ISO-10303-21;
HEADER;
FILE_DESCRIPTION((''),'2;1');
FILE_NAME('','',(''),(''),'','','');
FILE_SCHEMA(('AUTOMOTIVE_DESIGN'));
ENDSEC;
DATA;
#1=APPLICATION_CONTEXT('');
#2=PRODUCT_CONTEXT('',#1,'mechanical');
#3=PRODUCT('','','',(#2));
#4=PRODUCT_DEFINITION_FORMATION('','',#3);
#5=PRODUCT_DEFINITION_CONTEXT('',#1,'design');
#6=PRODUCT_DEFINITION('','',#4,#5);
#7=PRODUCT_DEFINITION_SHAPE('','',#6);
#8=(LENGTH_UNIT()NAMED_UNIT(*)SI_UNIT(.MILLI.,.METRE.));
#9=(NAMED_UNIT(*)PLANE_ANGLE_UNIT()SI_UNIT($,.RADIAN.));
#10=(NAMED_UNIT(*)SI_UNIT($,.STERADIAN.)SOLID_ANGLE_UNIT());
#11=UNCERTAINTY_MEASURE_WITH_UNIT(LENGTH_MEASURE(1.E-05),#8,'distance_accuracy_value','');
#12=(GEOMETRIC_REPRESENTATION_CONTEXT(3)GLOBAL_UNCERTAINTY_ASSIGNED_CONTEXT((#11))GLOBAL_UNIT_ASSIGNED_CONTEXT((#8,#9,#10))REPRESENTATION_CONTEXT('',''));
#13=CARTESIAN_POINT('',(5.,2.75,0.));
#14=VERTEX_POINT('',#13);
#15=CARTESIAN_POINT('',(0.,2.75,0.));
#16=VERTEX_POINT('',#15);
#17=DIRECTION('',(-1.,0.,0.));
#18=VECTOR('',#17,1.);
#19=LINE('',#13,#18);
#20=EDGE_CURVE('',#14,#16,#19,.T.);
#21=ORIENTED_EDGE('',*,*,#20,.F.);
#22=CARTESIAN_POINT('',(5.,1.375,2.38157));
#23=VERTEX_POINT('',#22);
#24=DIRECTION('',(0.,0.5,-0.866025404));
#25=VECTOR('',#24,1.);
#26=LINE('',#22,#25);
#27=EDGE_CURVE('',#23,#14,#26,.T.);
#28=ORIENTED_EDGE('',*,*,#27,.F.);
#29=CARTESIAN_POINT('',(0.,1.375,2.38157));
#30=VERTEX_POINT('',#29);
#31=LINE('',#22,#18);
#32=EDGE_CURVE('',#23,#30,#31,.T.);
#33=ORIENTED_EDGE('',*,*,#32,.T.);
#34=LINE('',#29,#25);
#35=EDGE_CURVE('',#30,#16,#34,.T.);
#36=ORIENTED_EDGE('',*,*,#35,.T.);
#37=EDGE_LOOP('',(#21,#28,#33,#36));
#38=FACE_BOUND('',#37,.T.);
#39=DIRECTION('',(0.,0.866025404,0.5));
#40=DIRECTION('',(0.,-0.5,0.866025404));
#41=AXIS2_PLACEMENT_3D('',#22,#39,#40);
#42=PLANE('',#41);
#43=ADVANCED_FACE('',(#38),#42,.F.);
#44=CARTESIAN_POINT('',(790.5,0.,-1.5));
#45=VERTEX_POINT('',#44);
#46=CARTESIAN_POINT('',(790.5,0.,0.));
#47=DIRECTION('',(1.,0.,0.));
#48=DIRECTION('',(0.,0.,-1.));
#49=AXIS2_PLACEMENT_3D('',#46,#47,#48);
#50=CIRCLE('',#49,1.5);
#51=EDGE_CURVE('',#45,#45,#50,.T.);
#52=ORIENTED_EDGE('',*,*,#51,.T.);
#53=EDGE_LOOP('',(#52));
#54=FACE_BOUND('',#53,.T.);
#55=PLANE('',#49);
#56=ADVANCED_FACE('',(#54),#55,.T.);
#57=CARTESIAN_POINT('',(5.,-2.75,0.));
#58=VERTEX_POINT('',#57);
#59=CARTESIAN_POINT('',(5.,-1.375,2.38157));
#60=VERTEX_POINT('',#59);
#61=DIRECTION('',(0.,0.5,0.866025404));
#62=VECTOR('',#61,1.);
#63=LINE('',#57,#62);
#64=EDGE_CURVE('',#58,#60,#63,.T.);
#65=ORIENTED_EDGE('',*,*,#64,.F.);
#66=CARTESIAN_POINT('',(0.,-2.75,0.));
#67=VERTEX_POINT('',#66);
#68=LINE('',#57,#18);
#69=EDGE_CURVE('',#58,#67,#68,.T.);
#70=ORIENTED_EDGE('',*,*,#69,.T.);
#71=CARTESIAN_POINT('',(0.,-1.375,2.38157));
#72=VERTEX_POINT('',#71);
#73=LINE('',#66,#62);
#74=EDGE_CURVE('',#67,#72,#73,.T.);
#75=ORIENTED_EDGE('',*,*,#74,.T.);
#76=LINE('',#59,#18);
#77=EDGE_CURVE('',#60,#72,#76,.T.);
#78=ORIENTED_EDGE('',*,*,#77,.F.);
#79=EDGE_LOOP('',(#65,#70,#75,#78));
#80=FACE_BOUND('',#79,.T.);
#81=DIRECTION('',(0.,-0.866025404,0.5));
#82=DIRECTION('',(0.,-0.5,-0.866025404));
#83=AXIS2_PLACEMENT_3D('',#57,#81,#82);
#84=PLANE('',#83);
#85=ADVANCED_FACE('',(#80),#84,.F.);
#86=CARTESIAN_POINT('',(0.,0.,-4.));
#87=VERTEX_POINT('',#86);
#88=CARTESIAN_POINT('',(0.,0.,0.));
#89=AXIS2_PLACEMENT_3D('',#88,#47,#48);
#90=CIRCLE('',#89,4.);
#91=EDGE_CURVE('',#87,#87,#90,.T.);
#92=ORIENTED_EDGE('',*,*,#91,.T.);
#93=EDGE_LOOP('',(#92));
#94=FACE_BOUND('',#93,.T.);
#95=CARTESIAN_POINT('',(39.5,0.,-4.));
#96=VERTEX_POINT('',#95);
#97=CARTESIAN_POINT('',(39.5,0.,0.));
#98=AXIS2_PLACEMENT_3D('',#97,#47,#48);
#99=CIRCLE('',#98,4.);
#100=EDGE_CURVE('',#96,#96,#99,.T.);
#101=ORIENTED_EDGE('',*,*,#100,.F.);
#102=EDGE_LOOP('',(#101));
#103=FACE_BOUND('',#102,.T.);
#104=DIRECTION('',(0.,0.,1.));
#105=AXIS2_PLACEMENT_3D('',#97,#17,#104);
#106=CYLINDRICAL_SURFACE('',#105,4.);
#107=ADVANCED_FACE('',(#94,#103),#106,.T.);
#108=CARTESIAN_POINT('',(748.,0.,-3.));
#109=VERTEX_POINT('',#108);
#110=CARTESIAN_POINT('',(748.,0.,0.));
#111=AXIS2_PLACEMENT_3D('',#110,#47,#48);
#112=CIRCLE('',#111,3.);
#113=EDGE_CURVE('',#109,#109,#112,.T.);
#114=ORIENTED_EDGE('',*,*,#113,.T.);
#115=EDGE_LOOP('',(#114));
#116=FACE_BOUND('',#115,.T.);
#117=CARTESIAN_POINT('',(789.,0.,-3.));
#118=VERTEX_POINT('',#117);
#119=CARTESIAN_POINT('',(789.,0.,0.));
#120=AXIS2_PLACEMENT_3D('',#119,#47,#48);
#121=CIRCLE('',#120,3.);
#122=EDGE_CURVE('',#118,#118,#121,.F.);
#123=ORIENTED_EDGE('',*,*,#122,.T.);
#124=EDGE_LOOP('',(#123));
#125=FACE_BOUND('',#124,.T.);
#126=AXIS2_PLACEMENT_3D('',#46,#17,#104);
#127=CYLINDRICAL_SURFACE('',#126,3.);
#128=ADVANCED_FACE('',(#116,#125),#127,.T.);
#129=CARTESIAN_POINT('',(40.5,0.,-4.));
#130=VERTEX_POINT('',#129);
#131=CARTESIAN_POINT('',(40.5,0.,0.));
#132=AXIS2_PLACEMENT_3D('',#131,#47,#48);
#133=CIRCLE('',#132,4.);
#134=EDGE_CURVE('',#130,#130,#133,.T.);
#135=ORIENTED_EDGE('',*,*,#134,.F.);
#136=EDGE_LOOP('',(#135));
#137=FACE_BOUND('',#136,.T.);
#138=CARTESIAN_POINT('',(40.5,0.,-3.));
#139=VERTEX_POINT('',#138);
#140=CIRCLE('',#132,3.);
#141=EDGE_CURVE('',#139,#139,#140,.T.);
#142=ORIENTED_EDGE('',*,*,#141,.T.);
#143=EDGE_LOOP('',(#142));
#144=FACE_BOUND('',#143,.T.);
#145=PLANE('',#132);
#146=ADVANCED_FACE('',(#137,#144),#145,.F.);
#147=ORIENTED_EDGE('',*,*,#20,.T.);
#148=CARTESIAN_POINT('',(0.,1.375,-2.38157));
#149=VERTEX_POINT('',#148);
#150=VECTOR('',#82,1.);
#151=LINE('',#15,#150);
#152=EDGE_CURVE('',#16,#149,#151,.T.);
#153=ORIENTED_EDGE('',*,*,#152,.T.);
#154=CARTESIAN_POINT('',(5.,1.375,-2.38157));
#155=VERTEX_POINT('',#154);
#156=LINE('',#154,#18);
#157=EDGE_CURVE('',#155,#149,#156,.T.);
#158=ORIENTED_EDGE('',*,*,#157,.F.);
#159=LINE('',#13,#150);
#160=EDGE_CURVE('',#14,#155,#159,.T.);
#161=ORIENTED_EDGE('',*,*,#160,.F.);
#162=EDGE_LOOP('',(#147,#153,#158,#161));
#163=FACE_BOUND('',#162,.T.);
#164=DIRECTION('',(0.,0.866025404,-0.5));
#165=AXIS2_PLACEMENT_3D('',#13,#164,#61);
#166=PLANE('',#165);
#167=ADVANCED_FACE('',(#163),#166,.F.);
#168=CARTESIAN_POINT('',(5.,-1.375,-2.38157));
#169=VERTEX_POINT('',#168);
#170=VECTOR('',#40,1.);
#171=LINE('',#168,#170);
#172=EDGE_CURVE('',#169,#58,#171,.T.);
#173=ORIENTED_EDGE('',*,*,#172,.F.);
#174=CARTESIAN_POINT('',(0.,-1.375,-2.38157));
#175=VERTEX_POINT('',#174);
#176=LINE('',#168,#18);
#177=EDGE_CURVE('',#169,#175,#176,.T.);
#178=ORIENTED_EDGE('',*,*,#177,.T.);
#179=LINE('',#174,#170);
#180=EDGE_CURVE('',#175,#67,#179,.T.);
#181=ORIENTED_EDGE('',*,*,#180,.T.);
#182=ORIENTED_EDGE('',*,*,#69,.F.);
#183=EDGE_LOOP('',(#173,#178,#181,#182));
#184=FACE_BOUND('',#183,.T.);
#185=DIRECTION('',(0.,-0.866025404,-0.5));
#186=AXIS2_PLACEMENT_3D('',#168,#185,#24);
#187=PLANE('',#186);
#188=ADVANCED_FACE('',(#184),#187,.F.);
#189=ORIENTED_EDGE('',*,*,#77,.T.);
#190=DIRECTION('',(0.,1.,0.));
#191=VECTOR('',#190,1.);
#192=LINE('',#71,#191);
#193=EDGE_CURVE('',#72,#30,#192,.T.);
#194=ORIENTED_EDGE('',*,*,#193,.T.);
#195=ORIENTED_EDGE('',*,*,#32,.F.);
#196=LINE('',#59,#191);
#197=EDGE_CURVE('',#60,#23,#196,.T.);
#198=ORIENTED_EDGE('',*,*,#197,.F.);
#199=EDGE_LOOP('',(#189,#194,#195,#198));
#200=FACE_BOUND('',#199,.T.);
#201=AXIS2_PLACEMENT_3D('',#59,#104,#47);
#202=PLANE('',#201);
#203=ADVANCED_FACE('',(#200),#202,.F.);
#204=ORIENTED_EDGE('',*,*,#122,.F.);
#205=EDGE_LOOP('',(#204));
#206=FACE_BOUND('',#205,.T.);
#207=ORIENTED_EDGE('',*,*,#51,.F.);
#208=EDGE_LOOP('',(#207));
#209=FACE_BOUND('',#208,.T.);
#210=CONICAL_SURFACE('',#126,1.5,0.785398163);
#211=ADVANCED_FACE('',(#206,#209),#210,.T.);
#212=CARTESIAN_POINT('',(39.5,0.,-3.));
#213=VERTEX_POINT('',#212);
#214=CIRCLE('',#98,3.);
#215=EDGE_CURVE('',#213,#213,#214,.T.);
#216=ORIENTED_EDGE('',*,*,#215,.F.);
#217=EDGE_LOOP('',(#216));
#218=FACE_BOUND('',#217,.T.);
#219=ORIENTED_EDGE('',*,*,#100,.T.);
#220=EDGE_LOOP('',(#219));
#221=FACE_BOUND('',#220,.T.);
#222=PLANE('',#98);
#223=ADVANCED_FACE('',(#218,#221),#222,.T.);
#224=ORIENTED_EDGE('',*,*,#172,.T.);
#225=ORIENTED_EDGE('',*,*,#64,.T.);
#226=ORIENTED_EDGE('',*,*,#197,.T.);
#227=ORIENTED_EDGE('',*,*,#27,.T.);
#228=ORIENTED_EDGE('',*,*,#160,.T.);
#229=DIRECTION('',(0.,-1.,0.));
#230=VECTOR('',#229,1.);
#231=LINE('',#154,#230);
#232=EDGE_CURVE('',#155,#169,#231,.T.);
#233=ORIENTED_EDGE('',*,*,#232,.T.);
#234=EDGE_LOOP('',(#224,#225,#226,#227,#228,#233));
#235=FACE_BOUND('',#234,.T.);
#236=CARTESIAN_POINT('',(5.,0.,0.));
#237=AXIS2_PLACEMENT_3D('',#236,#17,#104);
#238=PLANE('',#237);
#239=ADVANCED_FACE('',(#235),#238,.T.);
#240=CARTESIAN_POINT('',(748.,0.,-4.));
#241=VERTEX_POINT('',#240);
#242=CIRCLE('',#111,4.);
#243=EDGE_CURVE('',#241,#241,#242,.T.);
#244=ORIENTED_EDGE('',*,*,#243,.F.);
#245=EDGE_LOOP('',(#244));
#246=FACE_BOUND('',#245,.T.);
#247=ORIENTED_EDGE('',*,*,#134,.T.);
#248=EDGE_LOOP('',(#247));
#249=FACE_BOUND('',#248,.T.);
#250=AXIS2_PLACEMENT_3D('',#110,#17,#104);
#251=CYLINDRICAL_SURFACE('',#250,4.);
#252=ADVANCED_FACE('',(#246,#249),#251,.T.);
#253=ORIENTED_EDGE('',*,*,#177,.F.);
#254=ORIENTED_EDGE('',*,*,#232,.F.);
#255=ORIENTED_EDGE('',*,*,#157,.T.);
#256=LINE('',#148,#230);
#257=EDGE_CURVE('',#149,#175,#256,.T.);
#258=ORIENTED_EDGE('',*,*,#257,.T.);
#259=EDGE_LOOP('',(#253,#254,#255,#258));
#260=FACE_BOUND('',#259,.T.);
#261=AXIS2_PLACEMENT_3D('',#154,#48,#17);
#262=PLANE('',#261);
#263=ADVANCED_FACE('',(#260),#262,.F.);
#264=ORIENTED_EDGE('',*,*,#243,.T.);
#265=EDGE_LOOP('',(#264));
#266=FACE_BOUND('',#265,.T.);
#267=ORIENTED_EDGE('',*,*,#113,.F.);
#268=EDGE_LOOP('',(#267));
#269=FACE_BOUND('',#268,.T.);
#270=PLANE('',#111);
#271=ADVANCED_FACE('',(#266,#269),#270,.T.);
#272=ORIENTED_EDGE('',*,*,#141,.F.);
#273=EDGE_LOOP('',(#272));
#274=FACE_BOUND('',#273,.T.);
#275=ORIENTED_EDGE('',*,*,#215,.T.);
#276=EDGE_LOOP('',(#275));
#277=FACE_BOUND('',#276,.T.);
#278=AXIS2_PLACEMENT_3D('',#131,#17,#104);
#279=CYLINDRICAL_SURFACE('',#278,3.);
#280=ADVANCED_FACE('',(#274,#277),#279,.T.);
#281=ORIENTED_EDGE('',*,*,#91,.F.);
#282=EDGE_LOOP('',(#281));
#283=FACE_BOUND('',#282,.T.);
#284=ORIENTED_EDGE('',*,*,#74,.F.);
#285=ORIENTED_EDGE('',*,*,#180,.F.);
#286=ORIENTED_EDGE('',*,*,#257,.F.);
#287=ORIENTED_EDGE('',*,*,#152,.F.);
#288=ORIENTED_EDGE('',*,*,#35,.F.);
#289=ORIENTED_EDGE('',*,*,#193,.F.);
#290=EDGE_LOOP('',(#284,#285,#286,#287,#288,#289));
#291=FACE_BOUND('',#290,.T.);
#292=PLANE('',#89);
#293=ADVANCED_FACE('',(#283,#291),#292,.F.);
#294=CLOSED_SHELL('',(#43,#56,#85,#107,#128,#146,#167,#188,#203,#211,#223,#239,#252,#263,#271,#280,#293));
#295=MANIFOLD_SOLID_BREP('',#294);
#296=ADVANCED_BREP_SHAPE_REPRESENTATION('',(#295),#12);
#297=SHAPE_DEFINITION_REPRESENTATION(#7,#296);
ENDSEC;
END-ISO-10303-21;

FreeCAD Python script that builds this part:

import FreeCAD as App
import Part
import Sketcher
Q = App.Units.Quantity


def edges_at(feature, points):
    """Names of the edges that pass closest to the given points."""
    edges = feature.Shape.Edges
    near = lambda p: min(range(len(edges)), key=lambda i: edges[i].distToShape(Part.Vertex(*p))[0])
    return sorted({f"Edge{near(p) + 1}" for p in points})


def add_polygon(sketch, points):
    """Adds a closed chain of lines whose ends are joined by coincident constraints."""
    first, n = sketch.GeometryCount, len(points)
    for a, b in zip(points, points[1:] + points[:1]):
        sketch.addGeometry(Part.LineSegment(App.Vector(*a, 0), App.Vector(*b, 0)), False)
    for i in range(n):
        sketch.addConstraint(Sketcher.Constraint("Coincident", first + i, 2, first + (i + 1) % n, 1))

doc = App.newDocument("Part")
body = doc.addObject("PartDesign::Body", "Body")

# Sketch on YZ plane
sketch1 = body.newObject("Sketcher::SketchObject", "Sketch")
sketch1.AttachmentSupport = (doc.getObject("YZ_Plane"), [""])
sketch1.MapMode = "FlatFace"
sketch1.addGeometry(Part.Circle(App.Vector(0, 0, 0), App.Vector(0, 0, 1), 4), False)
sketch1.addConstraint([
    Sketcher.Constraint("Coincident", 0, 3, -1, 1),
    Sketcher.Constraint("Diameter", 0, Q("8 mm")),
])
pad1 = body.newObject("PartDesign::Pad", "Pad")
pad1.Profile = sketch1
pad1.Length = 39.5

# Sketch on YZ plane
sketch2 = body.newObject("Sketcher::SketchObject", "Sketch001")
sketch2.AttachmentSupport = (doc.getObject("YZ_Plane"), [""])
sketch2.MapMode = "FlatFace"
sketch2.AttachmentOffset = App.Placement(App.Vector(0, 0, 39.5), App.Rotation())
sketch2.addGeometry(Part.Circle(App.Vector(0, 0, 0), App.Vector(0, 0, 1), 3), False)
sketch2.addConstraint([
    Sketcher.Constraint("Coincident", 0, 3, -1, 1),
    Sketcher.Constraint("Diameter", 0, Q("6 mm")),
])
pad2 = body.newObject("PartDesign::Pad", "Pad001")
pad2.Profile = sketch2
pad2.Length = 1

# Sketch on YZ plane
sketch3 = body.newObject("Sketcher::SketchObject", "Sketch002")
sketch3.AttachmentSupport = (doc.getObject("YZ_Plane"), [""])
sketch3.MapMode = "FlatFace"
sketch3.AttachmentOffset = App.Placement(App.Vector(0, 0, 40.5), App.Rotation())
sketch3.addGeometry(Part.Circle(App.Vector(0, 0, 0), App.Vector(0, 0, 1), 4), False)
sketch3.addConstraint([
    Sketcher.Constraint("Coincident", 0, 3, -1, 1),
    Sketcher.Constraint("Diameter", 0, Q("8 mm")),
])
pad3 = body.newObject("PartDesign::Pad", "Pad002")
pad3.Profile = sketch3
pad3.Length = 707.5

# Sketch on YZ plane
sketch4 = body.newObject("Sketcher::SketchObject", "Sketch003")
sketch4.AttachmentSupport = (doc.getObject("YZ_Plane"), [""])
sketch4.MapMode = "FlatFace"
sketch4.AttachmentOffset = App.Placement(App.Vector(0, 0, 748), App.Rotation())
sketch4.addGeometry(Part.Circle(App.Vector(0, 0, 0), App.Vector(0, 0, 1), 3), False)
sketch4.addConstraint([
    Sketcher.Constraint("Coincident", 0, 3, -1, 1),
    Sketcher.Constraint("Diameter", 0, Q("6 mm")),
])
pad4 = body.newObject("PartDesign::Pad", "Pad003")
pad4.Profile = sketch4
pad4.Length = 42.5
doc.recompute()

chamfer = body.newObject("PartDesign::Chamfer", "Chamfer")
chamfer.Base = (pad4, edges_at(pad4, [(790.5, 0, 3)]))
chamfer.Size = 1.5

# Sketch on YZ plane
sketch5 = body.newObject("Sketcher::SketchObject", "Sketch004")
sketch5.AttachmentSupport = (doc.getObject("YZ_Plane"), [""])
sketch5.MapMode = "FlatFace"
add_polygon(sketch5, [(1.375, -2.38157), (-1.375, -2.38157), (-2.75, 0), (-1.375, 2.38157), (1.375, 2.38157), (2.75, 0)])  # lines 0-5
sketch5.addConstraint([
    Sketcher.Constraint("Horizontal", 0),
    Sketcher.Constraint("Horizontal", 3),
    Sketcher.Constraint("Symmetric", 0, 2, 3, 2, -1, 1),
    Sketcher.Constraint("Symmetric", 1, 2, 4, 2, -1, 1),
    Sketcher.Constraint("PointOnObject", 1, 2, -1),
    Sketcher.Constraint("Parallel", 2, 5),
    Sketcher.Constraint("Vertical", 0, 2, 2, 2),
    Sketcher.Constraint("Angle", 1, Q("120 deg")),
    Sketcher.Constraint("DistanceX", 0, 2, 0, 1, Q("2.75 mm")),
    Sketcher.Constraint("DistanceX", 1, 2, 4, 2, Q("5.5 mm")),
])
pocket1 = body.newObject("PartDesign::Pocket", "Pocket")
pocket1.Profile = sketch5
pocket1.Length = 5
pocket1.Reversed = True

doc.recompute()
